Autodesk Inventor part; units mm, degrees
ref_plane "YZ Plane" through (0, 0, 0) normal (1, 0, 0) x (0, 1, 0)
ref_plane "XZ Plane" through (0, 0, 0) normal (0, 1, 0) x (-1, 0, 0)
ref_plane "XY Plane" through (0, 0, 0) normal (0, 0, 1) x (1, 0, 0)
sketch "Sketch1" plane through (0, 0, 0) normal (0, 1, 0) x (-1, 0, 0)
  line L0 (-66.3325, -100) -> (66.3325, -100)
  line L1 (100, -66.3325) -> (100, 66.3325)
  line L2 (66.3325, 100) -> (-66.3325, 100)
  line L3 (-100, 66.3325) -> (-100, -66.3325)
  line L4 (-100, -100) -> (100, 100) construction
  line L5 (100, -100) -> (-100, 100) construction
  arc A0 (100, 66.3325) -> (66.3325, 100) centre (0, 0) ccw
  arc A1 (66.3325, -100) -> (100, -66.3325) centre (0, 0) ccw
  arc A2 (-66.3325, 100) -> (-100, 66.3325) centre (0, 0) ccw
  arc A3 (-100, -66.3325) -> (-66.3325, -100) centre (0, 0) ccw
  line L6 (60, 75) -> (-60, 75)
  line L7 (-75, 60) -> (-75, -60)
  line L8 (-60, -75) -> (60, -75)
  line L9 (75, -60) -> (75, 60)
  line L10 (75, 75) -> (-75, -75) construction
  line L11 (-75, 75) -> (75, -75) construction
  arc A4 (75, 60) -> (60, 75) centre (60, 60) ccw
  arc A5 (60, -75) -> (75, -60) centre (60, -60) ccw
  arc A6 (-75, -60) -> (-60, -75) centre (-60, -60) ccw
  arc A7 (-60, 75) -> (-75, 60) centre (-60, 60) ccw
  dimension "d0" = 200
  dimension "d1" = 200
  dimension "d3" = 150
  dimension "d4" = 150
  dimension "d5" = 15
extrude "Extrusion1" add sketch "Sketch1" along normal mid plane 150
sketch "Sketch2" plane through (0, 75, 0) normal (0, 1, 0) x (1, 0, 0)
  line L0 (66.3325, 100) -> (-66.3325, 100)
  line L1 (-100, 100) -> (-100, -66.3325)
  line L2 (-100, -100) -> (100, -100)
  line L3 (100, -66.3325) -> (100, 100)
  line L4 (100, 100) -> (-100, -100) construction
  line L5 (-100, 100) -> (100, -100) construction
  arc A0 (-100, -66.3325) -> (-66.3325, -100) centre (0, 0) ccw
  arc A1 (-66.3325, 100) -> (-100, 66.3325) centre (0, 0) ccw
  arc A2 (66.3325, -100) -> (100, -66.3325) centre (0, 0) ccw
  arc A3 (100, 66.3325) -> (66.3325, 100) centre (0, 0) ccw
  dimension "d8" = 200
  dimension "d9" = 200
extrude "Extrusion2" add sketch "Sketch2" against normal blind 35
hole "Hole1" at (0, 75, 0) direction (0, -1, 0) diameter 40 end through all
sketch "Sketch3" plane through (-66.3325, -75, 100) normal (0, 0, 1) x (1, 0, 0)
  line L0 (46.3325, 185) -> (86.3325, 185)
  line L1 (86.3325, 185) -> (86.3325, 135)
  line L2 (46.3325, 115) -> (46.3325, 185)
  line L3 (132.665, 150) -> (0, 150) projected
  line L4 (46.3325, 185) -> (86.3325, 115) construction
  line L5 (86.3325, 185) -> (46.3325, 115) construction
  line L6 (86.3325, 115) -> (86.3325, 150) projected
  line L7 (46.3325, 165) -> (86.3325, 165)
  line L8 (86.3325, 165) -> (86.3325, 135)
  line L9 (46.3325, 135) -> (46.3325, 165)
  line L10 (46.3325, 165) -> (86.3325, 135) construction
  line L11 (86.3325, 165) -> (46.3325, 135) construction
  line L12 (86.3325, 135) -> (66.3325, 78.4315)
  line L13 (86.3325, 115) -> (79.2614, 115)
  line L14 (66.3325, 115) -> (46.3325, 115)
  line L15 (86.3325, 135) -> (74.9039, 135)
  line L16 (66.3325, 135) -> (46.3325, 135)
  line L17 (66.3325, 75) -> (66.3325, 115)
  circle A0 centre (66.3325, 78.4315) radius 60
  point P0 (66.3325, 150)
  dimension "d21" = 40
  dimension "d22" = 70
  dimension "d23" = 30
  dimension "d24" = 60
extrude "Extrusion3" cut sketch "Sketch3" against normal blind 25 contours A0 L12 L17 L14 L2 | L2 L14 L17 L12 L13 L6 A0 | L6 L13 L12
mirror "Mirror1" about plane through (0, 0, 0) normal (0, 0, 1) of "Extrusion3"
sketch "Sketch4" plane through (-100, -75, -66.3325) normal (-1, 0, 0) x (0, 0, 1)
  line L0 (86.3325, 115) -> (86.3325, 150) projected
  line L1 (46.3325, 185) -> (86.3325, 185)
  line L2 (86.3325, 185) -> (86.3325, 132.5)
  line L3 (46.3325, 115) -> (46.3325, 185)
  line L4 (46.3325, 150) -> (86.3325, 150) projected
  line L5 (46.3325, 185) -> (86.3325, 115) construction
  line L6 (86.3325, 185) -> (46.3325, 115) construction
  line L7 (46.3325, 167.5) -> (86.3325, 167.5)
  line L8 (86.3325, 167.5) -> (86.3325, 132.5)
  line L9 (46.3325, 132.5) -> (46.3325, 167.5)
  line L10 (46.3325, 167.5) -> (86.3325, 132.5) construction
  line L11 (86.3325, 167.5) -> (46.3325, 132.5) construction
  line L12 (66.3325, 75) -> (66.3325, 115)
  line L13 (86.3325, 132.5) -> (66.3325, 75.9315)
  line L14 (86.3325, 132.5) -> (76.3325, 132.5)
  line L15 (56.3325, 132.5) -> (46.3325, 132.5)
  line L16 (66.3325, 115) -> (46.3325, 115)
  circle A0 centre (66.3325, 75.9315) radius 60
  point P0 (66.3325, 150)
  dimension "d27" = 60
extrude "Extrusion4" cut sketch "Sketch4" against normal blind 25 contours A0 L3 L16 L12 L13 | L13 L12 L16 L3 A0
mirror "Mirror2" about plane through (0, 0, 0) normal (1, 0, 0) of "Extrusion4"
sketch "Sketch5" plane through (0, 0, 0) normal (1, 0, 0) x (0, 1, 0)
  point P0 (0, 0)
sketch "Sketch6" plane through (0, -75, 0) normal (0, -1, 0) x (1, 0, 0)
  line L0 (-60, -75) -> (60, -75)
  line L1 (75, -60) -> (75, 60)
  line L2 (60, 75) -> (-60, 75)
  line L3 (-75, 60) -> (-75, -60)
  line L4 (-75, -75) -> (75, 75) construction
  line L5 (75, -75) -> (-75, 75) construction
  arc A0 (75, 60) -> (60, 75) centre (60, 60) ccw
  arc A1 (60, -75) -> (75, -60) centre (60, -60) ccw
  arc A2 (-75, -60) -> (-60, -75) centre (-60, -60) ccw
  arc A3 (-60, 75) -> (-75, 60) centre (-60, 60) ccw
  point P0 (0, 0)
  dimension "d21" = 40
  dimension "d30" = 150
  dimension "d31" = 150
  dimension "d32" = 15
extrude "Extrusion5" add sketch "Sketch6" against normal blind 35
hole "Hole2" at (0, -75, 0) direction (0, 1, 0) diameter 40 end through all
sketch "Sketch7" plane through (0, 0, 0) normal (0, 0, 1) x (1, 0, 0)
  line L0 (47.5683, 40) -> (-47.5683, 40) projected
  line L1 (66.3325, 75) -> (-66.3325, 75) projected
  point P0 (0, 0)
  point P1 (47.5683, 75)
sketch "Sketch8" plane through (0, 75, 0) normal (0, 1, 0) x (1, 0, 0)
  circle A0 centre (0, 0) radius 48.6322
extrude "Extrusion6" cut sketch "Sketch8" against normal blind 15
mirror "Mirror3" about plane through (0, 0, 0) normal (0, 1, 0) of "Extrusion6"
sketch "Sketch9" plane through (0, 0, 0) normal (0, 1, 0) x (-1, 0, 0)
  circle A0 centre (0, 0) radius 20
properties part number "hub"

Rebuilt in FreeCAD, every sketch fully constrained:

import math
import FreeCAD as App
import Part
import Sketcher
from FreeCAD import Vector

doc = App.newDocument("Part")
body = doc.addObject("PartDesign::Body", "Body")

sketch1 = body.newObject("Sketcher::SketchObject", "Sketch")
sketch1.AttachmentSupport = (doc.getObject("XZ_Plane"), [""])
sketch1.MapMode = "FlatFace"
sketch1.addGeometry([
    Part.ArcOfCircle(Part.Circle(Vector(0, 0, 0), Vector(0, 0, 1), 120), math.radians(-56), math.radians(-34)),
    Part.LineSegment(Vector(66, -100, 0), Vector(-66, -100, 0)),
    Part.ArcOfCircle(Part.Circle(Vector(0, 0, 0), Vector(0, 0, 1), 120), math.radians(-146), math.radians(-124)),
    Part.LineSegment(Vector(-100, -66, 0), Vector(-100, 66, 0)),
    Part.ArcOfCircle(Part.Circle(Vector(0, 0, 0), Vector(0, 0, 1), 120), math.radians(124), math.radians(146)),
    Part.LineSegment(Vector(-66, 100, 0), Vector(66, 100, 0)),
    Part.ArcOfCircle(Part.Circle(Vector(0, 0, 0), Vector(0, 0, 1), 120), math.radians(34), math.radians(56)),
    Part.LineSegment(Vector(100, 66, 0), Vector(100, -66, 0)),
    Part.LineSegment(Vector(60, 75, 0), Vector(-60, 75, 0)),
    Part.ArcOfCircle(Part.Circle(Vector(-60, 60, 0), Vector(0, 0, 1), 15), math.radians(90), math.radians(180)),
    Part.LineSegment(Vector(-75, 60, 0), Vector(-75, -60, 0)),
    Part.ArcOfCircle(Part.Circle(Vector(-60, -60, 0), Vector(0, 0, 1), 15), math.radians(180), math.radians(270)),
    Part.LineSegment(Vector(-60, -75, 0), Vector(60, -75, 0)),
    Part.ArcOfCircle(Part.Circle(Vector(60, -60, 0), Vector(0, 0, 1), 15), math.radians(-90), math.radians(0)),
    Part.LineSegment(Vector(75, -60, 0), Vector(75, 60, 0)),
    Part.ArcOfCircle(Part.Circle(Vector(60, 60, 0), Vector(0, 0, 1), 15), math.radians(0), math.radians(90)),
], False)
sketch1.addConstraint([
    Sketcher.Constraint("Coincident", 0, 1, 1, 1),
    Sketcher.Constraint("Coincident", 1, 2, 2, 2),
    Sketcher.Constraint("Coincident", 2, 1, 3, 1),
    Sketcher.Constraint("Coincident", 3, 2, 4, 2),
    Sketcher.Constraint("Coincident", 4, 1, 5, 1),
    Sketcher.Constraint("Coincident", 5, 2, 6, 2),
    Sketcher.Constraint("Coincident", 6, 1, 7, 1),
    Sketcher.Constraint("Coincident", 7, 2, 0, 2),
    Sketcher.Constraint("Tangent", 8, 2, 9, 1),
    Sketcher.Constraint("Tangent", 9, 2, 10, 1),
    Sketcher.Constraint("Tangent", 10, 2, 11, 1),
    Sketcher.Constraint("Tangent", 11, 2, 12, 1),
    Sketcher.Constraint("Tangent", 12, 2, 13, 1),
    Sketcher.Constraint("Tangent", 13, 2, 14, 1),
    Sketcher.Constraint("Tangent", 14, 2, 15, 1),
    Sketcher.Constraint("Tangent", 15, 2, 8, 1),
    Sketcher.Constraint("Horizontal", 1),
    Sketcher.Constraint("Vertical", 3),
    Sketcher.Constraint("Horizontal", 5),
    Sketcher.Constraint("Vertical", 7),
    Sketcher.Constraint("Horizontal", 8),
    Sketcher.Constraint("Vertical", 10),
    Sketcher.Constraint("Horizontal", 12),
    Sketcher.Constraint("Vertical", 14),
    Sketcher.Constraint("Coincident", 0, 3, -1, 1),
    Sketcher.Constraint("Coincident", 2, 3, -1, 1),
    Sketcher.Constraint("Coincident", 4, 3, -1, 1),
    Sketcher.Constraint("Coincident", 6, 3, -1, 1),
    Sketcher.Constraint("Equal", 0, 2),
    Sketcher.Constraint("Equal", 2, 4),
    Sketcher.Constraint("Equal", 4, 6),
    Sketcher.Constraint("Equal", 9, 11),
    Sketcher.Constraint("Equal", 11, 13),
    Sketcher.Constraint("Equal", 13, 15),
    Sketcher.Constraint("Symmetric", 9, 3, 13, 3, -1, 1),
    Sketcher.Constraint("Horizontal", 3, 2, 6, 1),
    Sketcher.Constraint("Vertical", 1, 2, 4, 1),
    Sketcher.Constraint("Equal", 5, 3),
    Sketcher.Constraint("Equal", 12, 10),
    Sketcher.Constraint("Radius", 9, 15.0),
    Sketcher.Constraint("Radius", 0, 120.0),
    Sketcher.Constraint("DistanceX", 8, 2, 8, 1, 120.0),
    Sketcher.Constraint("DistanceY", 0, 1, -1, 1, 100.0),
])
pad1 = body.newObject("PartDesign::Pad", "Pad")
pad1.Profile = sketch1
pad1.Length = 150
pad1.Midplane = True

sketch2 = body.newObject("Sketcher::SketchObject", "Sketch001")
sketch2.AttachmentSupport = (doc.getObject("XZ_Plane"), [""])
sketch2.MapMode = "FlatFace"
sketch2.AttachmentOffset = App.Placement(Vector(0, 0, -75), App.Rotation())
sketch2.addGeometry([
    Part.ArcOfCircle(Part.Circle(Vector(0, 0, 0), Vector(0, 0, 1), 120), math.radians(-56), math.radians(-34)),
    Part.LineSegment(Vector(66, -100, 0), Vector(-66, -100, 0)),
    Part.ArcOfCircle(Part.Circle(Vector(0, 0, 0), Vector(0, 0, 1), 120), math.radians(-146), math.radians(-124)),
    Part.LineSegment(Vector(-100, -66, 0), Vector(-100, 66, 0)),
    Part.ArcOfCircle(Part.Circle(Vector(0, 0, 0), Vector(0, 0, 1), 120), math.radians(124), math.radians(146)),
    Part.LineSegment(Vector(-66, 100, 0), Vector(66, 100, 0)),
    Part.ArcOfCircle(Part.Circle(Vector(0, 0, 0), Vector(0, 0, 1), 120), math.radians(34), math.radians(56)),
    Part.LineSegment(Vector(100, 66, 0), Vector(100, -66, 0)),
], False)
sketch2.addConstraint([
    Sketcher.Constraint("Coincident", 0, 1, 1, 1),
    Sketcher.Constraint("Coincident", 1, 2, 2, 2),
    Sketcher.Constraint("Coincident", 2, 1, 3, 1),
    Sketcher.Constraint("Coincident", 3, 2, 4, 2),
    Sketcher.Constraint("Coincident", 4, 1, 5, 1),
    Sketcher.Constraint("Coincident", 5, 2, 6, 2),
    Sketcher.Constraint("Coincident", 6, 1, 7, 1),
    Sketcher.Constraint("Coincident", 7, 2, 0, 2),
    Sketcher.Constraint("Horizontal", 1),
    Sketcher.Constraint("Vertical", 3),
    Sketcher.Constraint("Horizontal", 5),
    Sketcher.Constraint("Vertical", 7),
    Sketcher.Constraint("Coincident", 0, 3, -1, 1),
    Sketcher.Constraint("Coincident", 2, 3, -1, 1),
    Sketcher.Constraint("Coincident", 4, 3, -1, 1),
    Sketcher.Constraint("Coincident", 6, 3, -1, 1),
    Sketcher.Constraint("Equal", 0, 2),
    Sketcher.Constraint("Equal", 2, 4),
    Sketcher.Constraint("Equal", 4, 6),
    Sketcher.Constraint("Horizontal", 3, 2, 6, 1),
    Sketcher.Constraint("Vertical", 1, 2, 4, 1),
    Sketcher.Constraint("Equal", 5, 3),
    Sketcher.Constraint("Radius", 0, 120.0),
    Sketcher.Constraint("DistanceY", 0, 1, -1, 1, 100.0),
])
pad2 = body.newObject("PartDesign::Pad", "Pad001")
pad2.Profile = sketch2
pad2.Length = 35

sketch3 = body.newObject("Sketcher::SketchObject", "Sketch002")
sketch3.AttachmentSupport = (doc.getObject("XZ_Plane"), [""])
sketch3.MapMode = "FlatFace"
sketch3.AttachmentOffset = App.Placement(Vector(0, 0, -75), App.Rotation())
sketch3.addGeometry(Part.Circle(Vector(0, 0, 0), Vector(0, 0, 1), 20), False)
sketch3.addConstraint([
    Sketcher.Constraint("Coincident", 0, 3, -1, 1),
    Sketcher.Constraint("Diameter", 0, 40.0),
])
doc.recompute()
hole = body.newObject("PartDesign::Hole", "Hole")
hole.Profile = sketch3
hole.ThreadType = "None"
hole.Diameter = 40
hole.DepthType = "ThroughAll"
hole.Reversed = True

sketch4 = body.newObject("Sketcher::SketchObject", "Sketch003")
sketch4.AttachmentSupport = (doc.getObject("XY_Plane"), [""])
sketch4.MapMode = "FlatFace"
sketch4.AttachmentOffset = App.Placement(Vector(0, 0, 100), App.Rotation())
sketch4.addGeometry(Part.Circle(Vector(0, 3, 0), Vector(0, 0, 1), 60), False)
sketch4.addConstraint([
    Sketcher.Constraint("PointOnObject", 0, 3, -2),
    Sketcher.Constraint("Diameter", 0, 120.0),
    Sketcher.Constraint("DistanceY", -1, 1, 0, 3, 3.4315),
])
pocket1 = body.newObject("PartDesign::Pocket", "Pocket")
pocket1.Profile = sketch4
pocket1.Length = 25
doc.recompute()

mirrored = body.newObject("PartDesign::Mirrored", "Mirrored")
mirrored.Originals = [pocket1]
mirrored.MirrorPlane = (doc.getObject("XY_Plane"), [""])
body.Tip = mirrored

sketch5 = body.newObject("Sketcher::SketchObject", "Sketch004")
sketch5.AttachmentSupport = (doc.getObject("YZ_Plane"), [""])
sketch5.MapMode = "FlatFace"
sketch5.AttachmentOffset = App.Placement(Vector(0, 0, -100), App.Rotation())
sketch5.addGeometry(Part.Circle(Vector(1, 0, 0), Vector(0, 0, 1), 60), False)
sketch5.addConstraint([
    Sketcher.Constraint("PointOnObject", 0, 3, -1),
    Sketcher.Constraint("Diameter", 0, 120.0),
    Sketcher.Constraint("DistanceX", -1, 1, 0, 3, 0.9315),
])
pocket2 = body.newObject("PartDesign::Pocket", "Pocket001")
pocket2.Profile = sketch5
pocket2.Length = 25
pocket2.Reversed = True
doc.recompute()

mirrored2 = body.newObject("PartDesign::Mirrored", "Mirrored001")
mirrored2.Originals = [pocket2]
mirrored2.MirrorPlane = (doc.getObject("YZ_Plane"), [""])
body.Tip = mirrored2

sketch6 = body.newObject("Sketcher::SketchObject", "Sketch005")
sketch6.AttachmentSupport = (doc.getObject("XZ_Plane"), [""])
sketch6.MapMode = "FlatFace"
sketch6.AttachmentOffset = App.Placement(Vector(0, 0, 75), App.Rotation())
sketch6.addGeometry([
    Part.ArcOfCircle(Part.Circle(Vector(-60, -60, 0), Vector(0, 0, 1), 15), math.radians(180), math.radians(270)),
    Part.LineSegment(Vector(-60, -75, 0), Vector(60, -75, 0)),
    Part.ArcOfCircle(Part.Circle(Vector(60, -60, 0), Vector(0, 0, 1), 15), math.radians(-90), math.radians(0)),
    Part.LineSegment(Vector(75, -60, 0), Vector(75, 60, 0)),
    Part.ArcOfCircle(Part.Circle(Vector(60, 60, 0), Vector(0, 0, 1), 15), math.radians(0), math.radians(90)),
    Part.LineSegment(Vector(60, 75, 0), Vector(-60, 75, 0)),
    Part.ArcOfCircle(Part.Circle(Vector(-60, 60, 0), Vector(0, 0, 1), 15), math.radians(90), math.radians(180)),
    Part.LineSegment(Vector(-75, 60, 0), Vector(-75, -60, 0)),
], False)
sketch6.addConstraint([
    Sketcher.Constraint("Tangent", 0, 2, 1, 1),
    Sketcher.Constraint("Tangent", 1, 2, 2, 1),
    Sketcher.Constraint("Tangent", 2, 2, 3, 1),
    Sketcher.Constraint("Tangent", 3, 2, 4, 1),
    Sketcher.Constraint("Tangent", 4, 2, 5, 1),
    Sketcher.Constraint("Tangent", 5, 2, 6, 1),
    Sketcher.Constraint("Tangent", 6, 2, 7, 1),
    Sketcher.Constraint("Tangent", 7, 2, 0, 1),
    Sketcher.Constraint("Horizontal", 1),
    Sketcher.Constraint("Vertical", 3),
    Sketcher.Constraint("Horizontal", 5),
    Sketcher.Constraint("Vertical", 7),
    Sketcher.Constraint("Equal", 0, 2),
    Sketcher.Constraint("Equal", 2, 4),
    Sketcher.Constraint("Equal", 4, 6),
    Sketcher.Constraint("Symmetric", 0, 3, 4, 3, -1, 1),
    Sketcher.Constraint("Equal", 5, 3),
    Sketcher.Constraint("Radius", 0, 15.0),
    Sketcher.Constraint("DistanceX", 1, 1, 1, 2, 120.0),
])
pad3 = body.newObject("PartDesign::Pad", "Pad002")
pad3.Profile = sketch6
pad3.Length = 35
pad3.Reversed = True

sketch7 = body.newObject("Sketcher::SketchObject", "Sketch006")
sketch7.AttachmentSupport = (doc.getObject("XZ_Plane"), [""])
sketch7.MapMode = "FlatFace"
sketch7.AttachmentOffset = App.Placement(Vector(0, 0, 75), App.Rotation())
sketch7.addGeometry(Part.Circle(Vector(0, 0, 0), Vector(0, 0, 1), 20), False)
sketch7.addConstraint([
    Sketcher.Constraint("Coincident", 0, 3, -1, 1),
    Sketcher.Constraint("Diameter", 0, 40.0),
])
doc.recompute()
hole2 = body.newObject("PartDesign::Hole", "Hole001")
hole2.Profile = sketch7
hole2.ThreadType = "None"
hole2.Diameter = 40
hole2.DepthType = "ThroughAll"

sketch8 = body.newObject("Sketcher::SketchObject", "Sketch007")
sketch8.AttachmentSupport = (doc.getObject("XZ_Plane"), [""])
sketch8.MapMode = "FlatFace"
sketch8.AttachmentOffset = App.Placement(Vector(0, 0, -75), App.Rotation())
sketch8.addGeometry(Part.Circle(Vector(0, 0, 0), Vector(0, 0, 1), 49), False)
sketch8.addConstraint([
    Sketcher.Constraint("Coincident", 0, 3, -1, 1),
    Sketcher.Constraint("Diameter", 0, 97.2644),
])
pocket3 = body.newObject("PartDesign::Pocket", "Pocket002")
pocket3.Profile = sketch8
pocket3.Length = 15
pocket3.Reversed = True
doc.recompute()

mirrored3 = body.newObject("PartDesign::Mirrored", "Mirrored002")
mirrored3.Originals = [pocket3]
mirrored3.MirrorPlane = (doc.getObject("XZ_Plane"), [""])
body.Tip = mirrored3

doc.recompute()
